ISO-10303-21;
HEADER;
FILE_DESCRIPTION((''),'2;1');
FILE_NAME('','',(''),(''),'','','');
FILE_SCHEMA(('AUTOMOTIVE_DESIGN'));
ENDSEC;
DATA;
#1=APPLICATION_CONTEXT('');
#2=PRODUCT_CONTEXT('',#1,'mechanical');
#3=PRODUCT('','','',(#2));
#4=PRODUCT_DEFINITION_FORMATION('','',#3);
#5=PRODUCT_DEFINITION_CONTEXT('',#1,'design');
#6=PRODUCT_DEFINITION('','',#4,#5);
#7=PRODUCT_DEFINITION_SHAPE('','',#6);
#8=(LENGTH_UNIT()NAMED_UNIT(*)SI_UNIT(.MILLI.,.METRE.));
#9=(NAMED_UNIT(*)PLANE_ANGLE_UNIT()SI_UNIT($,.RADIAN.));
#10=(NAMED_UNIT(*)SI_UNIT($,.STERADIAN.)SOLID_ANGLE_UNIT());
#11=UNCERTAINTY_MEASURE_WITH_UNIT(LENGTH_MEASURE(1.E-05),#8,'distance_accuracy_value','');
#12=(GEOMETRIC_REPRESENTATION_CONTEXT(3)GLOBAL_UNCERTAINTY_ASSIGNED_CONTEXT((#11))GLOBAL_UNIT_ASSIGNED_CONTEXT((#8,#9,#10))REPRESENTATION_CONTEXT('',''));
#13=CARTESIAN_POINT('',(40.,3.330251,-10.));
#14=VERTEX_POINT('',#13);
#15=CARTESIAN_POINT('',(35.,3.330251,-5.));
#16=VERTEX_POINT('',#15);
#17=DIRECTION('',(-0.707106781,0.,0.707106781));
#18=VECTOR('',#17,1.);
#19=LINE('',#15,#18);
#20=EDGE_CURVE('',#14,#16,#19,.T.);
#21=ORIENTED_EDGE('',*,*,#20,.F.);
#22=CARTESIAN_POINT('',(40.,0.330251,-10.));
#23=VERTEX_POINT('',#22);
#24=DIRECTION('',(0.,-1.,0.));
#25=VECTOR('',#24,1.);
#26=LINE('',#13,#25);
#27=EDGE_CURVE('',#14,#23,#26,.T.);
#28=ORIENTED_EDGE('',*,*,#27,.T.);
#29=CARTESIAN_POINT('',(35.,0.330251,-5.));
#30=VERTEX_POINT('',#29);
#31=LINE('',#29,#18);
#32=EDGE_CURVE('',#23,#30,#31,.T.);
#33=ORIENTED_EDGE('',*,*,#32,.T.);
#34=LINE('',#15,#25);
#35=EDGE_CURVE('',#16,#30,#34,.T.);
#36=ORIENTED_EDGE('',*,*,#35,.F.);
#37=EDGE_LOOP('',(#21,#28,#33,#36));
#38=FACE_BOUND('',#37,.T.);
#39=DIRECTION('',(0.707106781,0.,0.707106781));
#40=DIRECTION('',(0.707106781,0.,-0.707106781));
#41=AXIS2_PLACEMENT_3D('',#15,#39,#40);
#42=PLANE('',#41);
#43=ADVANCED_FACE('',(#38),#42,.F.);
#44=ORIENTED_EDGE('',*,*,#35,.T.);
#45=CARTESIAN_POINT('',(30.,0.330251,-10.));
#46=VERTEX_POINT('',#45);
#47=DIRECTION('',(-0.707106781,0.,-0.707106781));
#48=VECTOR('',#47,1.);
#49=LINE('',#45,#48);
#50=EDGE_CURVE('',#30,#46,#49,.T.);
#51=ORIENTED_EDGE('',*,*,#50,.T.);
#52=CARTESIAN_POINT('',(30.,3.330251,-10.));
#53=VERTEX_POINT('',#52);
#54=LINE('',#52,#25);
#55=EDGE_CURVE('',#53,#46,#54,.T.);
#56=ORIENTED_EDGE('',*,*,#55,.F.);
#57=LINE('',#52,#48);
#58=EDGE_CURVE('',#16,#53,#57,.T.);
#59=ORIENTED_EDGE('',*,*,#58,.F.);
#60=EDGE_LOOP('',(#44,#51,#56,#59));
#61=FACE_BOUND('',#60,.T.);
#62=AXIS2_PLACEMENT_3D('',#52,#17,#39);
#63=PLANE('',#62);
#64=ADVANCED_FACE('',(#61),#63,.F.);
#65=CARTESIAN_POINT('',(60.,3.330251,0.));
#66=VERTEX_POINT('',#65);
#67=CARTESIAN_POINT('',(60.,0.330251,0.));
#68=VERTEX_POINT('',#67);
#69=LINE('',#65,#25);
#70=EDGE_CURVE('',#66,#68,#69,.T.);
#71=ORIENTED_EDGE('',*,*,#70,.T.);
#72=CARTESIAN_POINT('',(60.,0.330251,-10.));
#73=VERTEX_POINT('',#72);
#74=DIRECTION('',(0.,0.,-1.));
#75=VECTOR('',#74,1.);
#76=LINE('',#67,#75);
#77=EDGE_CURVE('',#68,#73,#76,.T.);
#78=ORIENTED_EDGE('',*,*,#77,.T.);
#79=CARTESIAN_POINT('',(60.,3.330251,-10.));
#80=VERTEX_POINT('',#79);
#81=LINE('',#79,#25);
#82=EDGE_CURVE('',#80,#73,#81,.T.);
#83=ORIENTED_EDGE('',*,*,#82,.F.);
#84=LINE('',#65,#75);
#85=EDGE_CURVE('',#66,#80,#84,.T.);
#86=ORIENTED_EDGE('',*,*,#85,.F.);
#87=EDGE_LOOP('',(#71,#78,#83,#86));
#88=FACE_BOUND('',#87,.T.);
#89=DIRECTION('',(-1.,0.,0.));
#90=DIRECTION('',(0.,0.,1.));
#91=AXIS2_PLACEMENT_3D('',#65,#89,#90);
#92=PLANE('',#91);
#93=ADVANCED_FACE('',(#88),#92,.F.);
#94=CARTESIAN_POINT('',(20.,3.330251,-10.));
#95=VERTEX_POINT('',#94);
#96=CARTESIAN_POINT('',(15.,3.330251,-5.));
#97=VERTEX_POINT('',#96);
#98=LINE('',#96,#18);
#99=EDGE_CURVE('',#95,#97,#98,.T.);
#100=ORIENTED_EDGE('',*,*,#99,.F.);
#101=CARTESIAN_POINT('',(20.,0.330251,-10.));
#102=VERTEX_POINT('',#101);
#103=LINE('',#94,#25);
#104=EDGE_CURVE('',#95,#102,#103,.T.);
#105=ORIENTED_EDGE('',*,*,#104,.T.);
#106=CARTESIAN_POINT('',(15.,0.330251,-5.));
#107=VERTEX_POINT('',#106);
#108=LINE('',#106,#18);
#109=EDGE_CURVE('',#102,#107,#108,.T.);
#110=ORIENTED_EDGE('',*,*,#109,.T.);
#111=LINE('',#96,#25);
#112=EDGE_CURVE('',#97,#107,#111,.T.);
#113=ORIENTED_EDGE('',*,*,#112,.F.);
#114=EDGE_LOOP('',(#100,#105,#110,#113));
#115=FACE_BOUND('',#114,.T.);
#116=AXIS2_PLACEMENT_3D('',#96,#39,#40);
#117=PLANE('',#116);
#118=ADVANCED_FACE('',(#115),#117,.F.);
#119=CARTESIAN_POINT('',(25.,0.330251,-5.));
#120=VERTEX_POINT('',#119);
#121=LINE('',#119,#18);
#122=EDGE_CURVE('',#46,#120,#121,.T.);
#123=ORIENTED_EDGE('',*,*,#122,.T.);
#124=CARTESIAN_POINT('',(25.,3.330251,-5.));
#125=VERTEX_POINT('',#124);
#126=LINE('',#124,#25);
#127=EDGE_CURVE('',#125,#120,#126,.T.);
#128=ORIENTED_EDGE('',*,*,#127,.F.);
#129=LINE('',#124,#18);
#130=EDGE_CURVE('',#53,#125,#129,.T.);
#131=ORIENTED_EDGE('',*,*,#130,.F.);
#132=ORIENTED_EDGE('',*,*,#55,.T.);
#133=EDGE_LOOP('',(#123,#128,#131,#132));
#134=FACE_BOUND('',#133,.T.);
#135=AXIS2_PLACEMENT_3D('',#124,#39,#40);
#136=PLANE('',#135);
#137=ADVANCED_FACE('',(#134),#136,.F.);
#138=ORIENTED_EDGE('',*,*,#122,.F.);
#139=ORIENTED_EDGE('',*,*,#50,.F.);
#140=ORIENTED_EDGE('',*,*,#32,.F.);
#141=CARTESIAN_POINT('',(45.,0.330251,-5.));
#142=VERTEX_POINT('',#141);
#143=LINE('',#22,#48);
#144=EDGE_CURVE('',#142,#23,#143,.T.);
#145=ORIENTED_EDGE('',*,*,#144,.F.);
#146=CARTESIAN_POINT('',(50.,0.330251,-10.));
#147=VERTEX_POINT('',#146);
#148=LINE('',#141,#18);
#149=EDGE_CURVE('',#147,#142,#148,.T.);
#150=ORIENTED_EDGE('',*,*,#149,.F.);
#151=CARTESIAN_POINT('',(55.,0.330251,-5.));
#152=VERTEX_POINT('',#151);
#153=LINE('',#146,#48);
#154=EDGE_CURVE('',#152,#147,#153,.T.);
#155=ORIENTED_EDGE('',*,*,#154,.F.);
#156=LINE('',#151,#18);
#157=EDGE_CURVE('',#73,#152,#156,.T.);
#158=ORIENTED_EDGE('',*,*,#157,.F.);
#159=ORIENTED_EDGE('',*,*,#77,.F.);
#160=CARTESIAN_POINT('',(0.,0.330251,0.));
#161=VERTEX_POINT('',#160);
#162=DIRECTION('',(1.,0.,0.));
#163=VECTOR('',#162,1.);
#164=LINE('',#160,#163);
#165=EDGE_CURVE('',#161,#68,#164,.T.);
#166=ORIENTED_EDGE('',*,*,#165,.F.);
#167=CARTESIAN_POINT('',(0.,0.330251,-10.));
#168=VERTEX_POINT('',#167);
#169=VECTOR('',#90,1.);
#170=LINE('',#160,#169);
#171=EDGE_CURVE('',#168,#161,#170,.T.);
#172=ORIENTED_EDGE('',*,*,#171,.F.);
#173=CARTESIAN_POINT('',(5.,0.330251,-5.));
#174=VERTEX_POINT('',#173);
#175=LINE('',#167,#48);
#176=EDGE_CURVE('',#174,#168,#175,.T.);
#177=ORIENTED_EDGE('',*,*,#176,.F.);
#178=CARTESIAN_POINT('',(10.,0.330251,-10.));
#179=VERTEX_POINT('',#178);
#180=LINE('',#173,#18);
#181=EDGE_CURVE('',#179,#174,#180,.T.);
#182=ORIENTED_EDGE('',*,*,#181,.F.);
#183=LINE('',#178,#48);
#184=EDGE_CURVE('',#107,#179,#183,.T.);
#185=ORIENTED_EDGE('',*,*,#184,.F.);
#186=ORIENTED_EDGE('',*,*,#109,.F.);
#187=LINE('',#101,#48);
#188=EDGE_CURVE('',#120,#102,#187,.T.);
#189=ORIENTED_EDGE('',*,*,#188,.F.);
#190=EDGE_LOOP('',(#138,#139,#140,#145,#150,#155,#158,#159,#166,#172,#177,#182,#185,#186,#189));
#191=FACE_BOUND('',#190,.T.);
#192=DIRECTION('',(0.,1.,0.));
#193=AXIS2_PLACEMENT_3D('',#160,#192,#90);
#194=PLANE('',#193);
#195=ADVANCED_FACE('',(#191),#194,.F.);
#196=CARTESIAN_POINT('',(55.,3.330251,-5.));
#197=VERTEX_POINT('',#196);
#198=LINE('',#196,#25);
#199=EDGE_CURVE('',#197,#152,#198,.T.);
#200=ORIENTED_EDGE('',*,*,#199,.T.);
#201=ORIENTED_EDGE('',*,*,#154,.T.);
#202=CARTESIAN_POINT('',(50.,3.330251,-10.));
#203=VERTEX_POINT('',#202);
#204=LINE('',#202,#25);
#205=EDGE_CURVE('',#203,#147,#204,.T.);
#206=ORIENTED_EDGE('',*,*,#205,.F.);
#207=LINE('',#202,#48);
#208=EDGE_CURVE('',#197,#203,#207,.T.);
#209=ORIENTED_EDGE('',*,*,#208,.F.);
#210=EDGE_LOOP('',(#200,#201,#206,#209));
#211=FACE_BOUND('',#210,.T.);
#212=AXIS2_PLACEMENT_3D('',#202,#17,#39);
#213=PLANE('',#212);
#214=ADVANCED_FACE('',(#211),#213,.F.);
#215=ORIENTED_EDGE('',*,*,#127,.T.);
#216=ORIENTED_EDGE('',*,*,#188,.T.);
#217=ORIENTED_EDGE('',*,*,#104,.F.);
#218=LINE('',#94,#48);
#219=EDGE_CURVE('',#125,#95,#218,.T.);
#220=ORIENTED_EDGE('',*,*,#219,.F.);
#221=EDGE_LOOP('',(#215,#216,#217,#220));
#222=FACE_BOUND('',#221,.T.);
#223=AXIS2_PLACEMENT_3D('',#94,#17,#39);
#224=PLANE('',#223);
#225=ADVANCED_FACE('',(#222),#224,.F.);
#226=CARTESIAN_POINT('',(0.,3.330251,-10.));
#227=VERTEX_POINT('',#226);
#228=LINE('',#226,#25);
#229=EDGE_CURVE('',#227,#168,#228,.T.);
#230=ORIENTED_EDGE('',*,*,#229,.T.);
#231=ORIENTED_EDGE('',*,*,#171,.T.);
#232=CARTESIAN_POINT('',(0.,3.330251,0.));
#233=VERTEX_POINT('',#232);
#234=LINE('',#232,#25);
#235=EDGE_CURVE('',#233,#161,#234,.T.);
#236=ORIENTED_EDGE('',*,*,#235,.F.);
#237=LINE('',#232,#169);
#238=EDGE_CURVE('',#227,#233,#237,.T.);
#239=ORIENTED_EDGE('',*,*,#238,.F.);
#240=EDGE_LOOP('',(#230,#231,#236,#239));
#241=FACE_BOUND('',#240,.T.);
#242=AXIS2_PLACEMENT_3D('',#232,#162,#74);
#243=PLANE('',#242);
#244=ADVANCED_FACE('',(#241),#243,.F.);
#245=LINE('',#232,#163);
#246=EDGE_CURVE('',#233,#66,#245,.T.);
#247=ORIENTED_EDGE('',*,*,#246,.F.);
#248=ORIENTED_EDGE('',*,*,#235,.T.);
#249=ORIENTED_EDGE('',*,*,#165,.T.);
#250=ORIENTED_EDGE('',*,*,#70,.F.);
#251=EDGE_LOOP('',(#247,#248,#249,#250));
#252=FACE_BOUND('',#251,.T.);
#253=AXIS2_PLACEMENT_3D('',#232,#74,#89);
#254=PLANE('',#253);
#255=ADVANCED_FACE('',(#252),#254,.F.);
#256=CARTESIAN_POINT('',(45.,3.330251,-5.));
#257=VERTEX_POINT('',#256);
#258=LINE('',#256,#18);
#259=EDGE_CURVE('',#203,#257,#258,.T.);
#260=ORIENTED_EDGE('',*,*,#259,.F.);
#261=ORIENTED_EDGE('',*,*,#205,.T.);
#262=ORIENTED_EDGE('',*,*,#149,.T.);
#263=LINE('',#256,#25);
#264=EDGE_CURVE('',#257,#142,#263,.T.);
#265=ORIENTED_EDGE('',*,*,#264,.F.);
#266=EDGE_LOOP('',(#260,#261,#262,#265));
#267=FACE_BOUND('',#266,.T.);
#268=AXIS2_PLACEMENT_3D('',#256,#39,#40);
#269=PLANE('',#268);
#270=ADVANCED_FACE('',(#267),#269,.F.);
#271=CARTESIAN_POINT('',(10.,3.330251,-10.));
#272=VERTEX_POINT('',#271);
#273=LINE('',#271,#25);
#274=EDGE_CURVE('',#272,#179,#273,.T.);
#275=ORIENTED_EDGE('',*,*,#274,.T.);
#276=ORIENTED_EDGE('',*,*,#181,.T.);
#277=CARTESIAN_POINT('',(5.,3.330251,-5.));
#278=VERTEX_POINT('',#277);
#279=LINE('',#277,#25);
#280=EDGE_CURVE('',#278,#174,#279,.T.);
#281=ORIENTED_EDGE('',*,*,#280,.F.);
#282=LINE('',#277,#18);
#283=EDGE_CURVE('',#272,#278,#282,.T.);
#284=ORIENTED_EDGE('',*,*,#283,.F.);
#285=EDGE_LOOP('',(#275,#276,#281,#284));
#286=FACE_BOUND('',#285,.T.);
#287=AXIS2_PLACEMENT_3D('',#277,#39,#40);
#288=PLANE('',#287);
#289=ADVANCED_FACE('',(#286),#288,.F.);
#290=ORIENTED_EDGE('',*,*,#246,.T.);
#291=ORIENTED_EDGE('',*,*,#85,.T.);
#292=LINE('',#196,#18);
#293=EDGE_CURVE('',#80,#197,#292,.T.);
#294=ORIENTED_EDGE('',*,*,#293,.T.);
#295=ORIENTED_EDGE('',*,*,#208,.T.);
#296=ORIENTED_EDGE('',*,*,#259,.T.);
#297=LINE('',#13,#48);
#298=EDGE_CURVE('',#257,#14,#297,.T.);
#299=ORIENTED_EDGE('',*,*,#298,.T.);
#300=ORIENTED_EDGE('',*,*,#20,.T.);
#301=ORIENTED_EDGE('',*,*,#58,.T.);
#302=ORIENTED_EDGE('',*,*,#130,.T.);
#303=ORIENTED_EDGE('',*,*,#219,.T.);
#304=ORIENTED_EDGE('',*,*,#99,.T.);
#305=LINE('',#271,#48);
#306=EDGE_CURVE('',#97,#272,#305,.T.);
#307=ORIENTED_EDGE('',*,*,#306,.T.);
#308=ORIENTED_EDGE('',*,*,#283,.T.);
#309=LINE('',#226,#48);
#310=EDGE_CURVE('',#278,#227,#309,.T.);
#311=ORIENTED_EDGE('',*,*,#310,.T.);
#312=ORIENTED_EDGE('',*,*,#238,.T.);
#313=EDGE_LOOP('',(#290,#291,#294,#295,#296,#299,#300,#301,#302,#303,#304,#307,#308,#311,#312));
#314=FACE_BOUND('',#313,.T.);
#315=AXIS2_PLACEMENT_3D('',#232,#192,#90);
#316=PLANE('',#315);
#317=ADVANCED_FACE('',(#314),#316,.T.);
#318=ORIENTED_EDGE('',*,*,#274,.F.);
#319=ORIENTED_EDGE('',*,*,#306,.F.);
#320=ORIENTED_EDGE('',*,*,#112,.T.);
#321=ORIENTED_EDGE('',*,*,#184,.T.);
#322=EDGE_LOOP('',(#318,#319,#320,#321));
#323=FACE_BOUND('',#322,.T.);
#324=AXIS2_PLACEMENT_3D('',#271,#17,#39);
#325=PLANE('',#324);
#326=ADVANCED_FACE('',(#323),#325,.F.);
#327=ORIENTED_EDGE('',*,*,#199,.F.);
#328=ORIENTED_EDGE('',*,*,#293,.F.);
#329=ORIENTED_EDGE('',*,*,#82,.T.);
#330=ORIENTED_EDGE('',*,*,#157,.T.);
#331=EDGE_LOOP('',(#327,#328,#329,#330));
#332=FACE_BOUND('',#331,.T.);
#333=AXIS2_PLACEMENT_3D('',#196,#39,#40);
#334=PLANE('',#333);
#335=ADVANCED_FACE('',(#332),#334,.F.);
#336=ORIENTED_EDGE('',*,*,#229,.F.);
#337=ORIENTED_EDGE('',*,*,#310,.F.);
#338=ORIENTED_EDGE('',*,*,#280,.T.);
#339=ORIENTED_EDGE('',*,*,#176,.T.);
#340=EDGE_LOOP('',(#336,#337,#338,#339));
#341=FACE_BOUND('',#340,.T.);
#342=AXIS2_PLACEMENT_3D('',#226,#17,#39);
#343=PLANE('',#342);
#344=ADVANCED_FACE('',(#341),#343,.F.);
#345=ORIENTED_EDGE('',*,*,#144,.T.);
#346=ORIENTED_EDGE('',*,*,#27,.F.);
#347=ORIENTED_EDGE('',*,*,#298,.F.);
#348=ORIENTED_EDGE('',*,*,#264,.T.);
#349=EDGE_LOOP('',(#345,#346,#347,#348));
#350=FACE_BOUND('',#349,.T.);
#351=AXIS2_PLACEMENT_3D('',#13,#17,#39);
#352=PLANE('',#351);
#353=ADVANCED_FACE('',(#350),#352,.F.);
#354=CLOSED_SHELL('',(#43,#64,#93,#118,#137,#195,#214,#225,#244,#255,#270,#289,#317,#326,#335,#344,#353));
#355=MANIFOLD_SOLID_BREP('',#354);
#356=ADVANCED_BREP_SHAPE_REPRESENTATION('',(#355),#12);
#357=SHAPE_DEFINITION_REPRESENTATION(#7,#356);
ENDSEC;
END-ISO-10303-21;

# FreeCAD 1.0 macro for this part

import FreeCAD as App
import Part
import Sketcher
Q = App.Units.Quantity


def add_polygon(sketch, points):
    """Adds a closed chain of lines whose ends are joined by coincident constraints."""
    first, n = sketch.GeometryCount, len(points)
    for a, b in zip(points, points[1:] + points[:1]):
        sketch.addGeometry(Part.LineSegment(App.Vector(*a, 0), App.Vector(*b, 0)), False)
    for i in range(n):
        sketch.addConstraint(Sketcher.Constraint("Coincident", first + i, 2, first + (i + 1) % n, 1))

doc = App.newDocument("Part")
body = doc.addObject("PartDesign::Body", "Body")

sketch1 = doc.addObject("Sketcher::SketchObject", "Sketch")
body.addObject(sketch1)
sketch1.AttachmentSupport = (doc.XZ_Plane, [""])
sketch1.MapMode = "FlatFace"
sketch1.AttachmentOffset = App.Placement(App.Vector(0, 0, -0.330251), App.Rotation())
add_polygon(sketch1, [(0, -10), (0, 0), (60, 0), (60, -10), (55, -5), (50, -10), (45, -5), (40, -10), (35, -5), (30, -10), (25, -5), (20, -10), (15, -5), (10, -10), (5, -5)])
sketch1.addConstraint([
    Sketcher.Constraint("Vertical", 0),
    Sketcher.Constraint("Horizontal", 1),
    Sketcher.Constraint("Vertical", 2),
    Sketcher.Constraint("Coincident", 0, 2, -1, 1),
    Sketcher.Constraint("Perpendicular", 3, 4),
    Sketcher.Constraint("Perpendicular", 4, 5),
    Sketcher.Constraint("Perpendicular", 5, 6),
    Sketcher.Constraint("Perpendicular", 6, 7),
    Sketcher.Constraint("Perpendicular", 7, 8),
    Sketcher.Constraint("Perpendicular", 8, 9),
    Sketcher.Constraint("Perpendicular", 9, 10),
    Sketcher.Constraint("Perpendicular", 10, 11),
    Sketcher.Constraint("Perpendicular", 11, 12),
    Sketcher.Constraint("Perpendicular", 12, 13),
    Sketcher.Constraint("Perpendicular", 13, 14),
    Sketcher.Constraint("Horizontal", 2, 2, 4, 2),
    Sketcher.Constraint("Horizontal", 3, 2, 5, 2),
    Sketcher.Constraint("Horizontal", 4, 2, 6, 2),
    Sketcher.Constraint("Horizontal", 5, 2, 7, 2),
    Sketcher.Constraint("Horizontal", 6, 2, 8, 2),
    Sketcher.Constraint("Horizontal", 7, 2, 9, 2),
    Sketcher.Constraint("Horizontal", 8, 2, 10, 2),
    Sketcher.Constraint("Horizontal", 9, 2, 11, 2),
    Sketcher.Constraint("Horizontal", 10, 2, 12, 2),
    Sketcher.Constraint("Horizontal", 11, 2, 13, 2),
    Sketcher.Constraint("Horizontal", 12, 2, 14, 2),
    Sketcher.Constraint("Equal", 3, 4),
    Sketcher.Constraint("DistanceX", 1, 1, 1, 2, Q("60 mm")),
    Sketcher.Constraint("DistanceY", 0, 1, 0, 2, Q("10 mm")),
])
pad1 = doc.addObject("PartDesign::Pad", "Pad")
body.addObject(pad1)
pad1.Profile = sketch1
pad1.Length = 3
pad1.Reversed = True

doc.recompute()
